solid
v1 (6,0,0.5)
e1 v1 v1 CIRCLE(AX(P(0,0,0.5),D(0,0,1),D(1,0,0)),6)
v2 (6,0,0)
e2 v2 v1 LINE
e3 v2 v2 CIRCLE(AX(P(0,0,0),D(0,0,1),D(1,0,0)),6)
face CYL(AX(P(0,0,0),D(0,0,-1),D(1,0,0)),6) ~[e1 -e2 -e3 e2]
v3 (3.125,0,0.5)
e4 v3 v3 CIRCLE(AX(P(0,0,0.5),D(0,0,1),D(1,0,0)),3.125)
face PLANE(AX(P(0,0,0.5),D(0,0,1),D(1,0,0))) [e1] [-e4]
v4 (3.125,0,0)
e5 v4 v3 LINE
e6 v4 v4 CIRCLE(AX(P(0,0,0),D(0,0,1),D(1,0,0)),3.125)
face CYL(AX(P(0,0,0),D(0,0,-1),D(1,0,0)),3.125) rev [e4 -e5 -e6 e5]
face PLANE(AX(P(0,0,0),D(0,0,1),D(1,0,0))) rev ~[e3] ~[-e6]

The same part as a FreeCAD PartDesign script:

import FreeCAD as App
import Part
import Sketcher

V = App.Vector
Q = App.Units.Quantity

doc = App.newDocument("Part")
body = doc.addObject("PartDesign::Body", "Body")

# Sketch on XY plane
sketch1 = body.newObject("Sketcher::SketchObject", "Sketch")
sketch1.AttachmentSupport = (doc.getObject("XY_Plane"), [""])
sketch1.MapMode = "FlatFace"
sketch1.addGeometry([
    Part.Circle(V(0, 0, 0), V(0, 0, 1), 6),
    Part.Circle(V(0, 0, 0), V(0, 0, 1), 3.125),
], False)
sketch1.addConstraint([
    Sketcher.Constraint("Coincident", 0, 3, -1, 1),
    Sketcher.Constraint("Coincident", 1, 3, -1, 1),
    Sketcher.Constraint("Diameter", 0, Q("12 mm")),
    Sketcher.Constraint("Diameter", 1, Q("6.25 mm")),
])
pad1 = body.newObject("PartDesign::Pad", "Pad")
pad1.Profile = sketch1
pad1.Length = 0.5

doc.recompute()
